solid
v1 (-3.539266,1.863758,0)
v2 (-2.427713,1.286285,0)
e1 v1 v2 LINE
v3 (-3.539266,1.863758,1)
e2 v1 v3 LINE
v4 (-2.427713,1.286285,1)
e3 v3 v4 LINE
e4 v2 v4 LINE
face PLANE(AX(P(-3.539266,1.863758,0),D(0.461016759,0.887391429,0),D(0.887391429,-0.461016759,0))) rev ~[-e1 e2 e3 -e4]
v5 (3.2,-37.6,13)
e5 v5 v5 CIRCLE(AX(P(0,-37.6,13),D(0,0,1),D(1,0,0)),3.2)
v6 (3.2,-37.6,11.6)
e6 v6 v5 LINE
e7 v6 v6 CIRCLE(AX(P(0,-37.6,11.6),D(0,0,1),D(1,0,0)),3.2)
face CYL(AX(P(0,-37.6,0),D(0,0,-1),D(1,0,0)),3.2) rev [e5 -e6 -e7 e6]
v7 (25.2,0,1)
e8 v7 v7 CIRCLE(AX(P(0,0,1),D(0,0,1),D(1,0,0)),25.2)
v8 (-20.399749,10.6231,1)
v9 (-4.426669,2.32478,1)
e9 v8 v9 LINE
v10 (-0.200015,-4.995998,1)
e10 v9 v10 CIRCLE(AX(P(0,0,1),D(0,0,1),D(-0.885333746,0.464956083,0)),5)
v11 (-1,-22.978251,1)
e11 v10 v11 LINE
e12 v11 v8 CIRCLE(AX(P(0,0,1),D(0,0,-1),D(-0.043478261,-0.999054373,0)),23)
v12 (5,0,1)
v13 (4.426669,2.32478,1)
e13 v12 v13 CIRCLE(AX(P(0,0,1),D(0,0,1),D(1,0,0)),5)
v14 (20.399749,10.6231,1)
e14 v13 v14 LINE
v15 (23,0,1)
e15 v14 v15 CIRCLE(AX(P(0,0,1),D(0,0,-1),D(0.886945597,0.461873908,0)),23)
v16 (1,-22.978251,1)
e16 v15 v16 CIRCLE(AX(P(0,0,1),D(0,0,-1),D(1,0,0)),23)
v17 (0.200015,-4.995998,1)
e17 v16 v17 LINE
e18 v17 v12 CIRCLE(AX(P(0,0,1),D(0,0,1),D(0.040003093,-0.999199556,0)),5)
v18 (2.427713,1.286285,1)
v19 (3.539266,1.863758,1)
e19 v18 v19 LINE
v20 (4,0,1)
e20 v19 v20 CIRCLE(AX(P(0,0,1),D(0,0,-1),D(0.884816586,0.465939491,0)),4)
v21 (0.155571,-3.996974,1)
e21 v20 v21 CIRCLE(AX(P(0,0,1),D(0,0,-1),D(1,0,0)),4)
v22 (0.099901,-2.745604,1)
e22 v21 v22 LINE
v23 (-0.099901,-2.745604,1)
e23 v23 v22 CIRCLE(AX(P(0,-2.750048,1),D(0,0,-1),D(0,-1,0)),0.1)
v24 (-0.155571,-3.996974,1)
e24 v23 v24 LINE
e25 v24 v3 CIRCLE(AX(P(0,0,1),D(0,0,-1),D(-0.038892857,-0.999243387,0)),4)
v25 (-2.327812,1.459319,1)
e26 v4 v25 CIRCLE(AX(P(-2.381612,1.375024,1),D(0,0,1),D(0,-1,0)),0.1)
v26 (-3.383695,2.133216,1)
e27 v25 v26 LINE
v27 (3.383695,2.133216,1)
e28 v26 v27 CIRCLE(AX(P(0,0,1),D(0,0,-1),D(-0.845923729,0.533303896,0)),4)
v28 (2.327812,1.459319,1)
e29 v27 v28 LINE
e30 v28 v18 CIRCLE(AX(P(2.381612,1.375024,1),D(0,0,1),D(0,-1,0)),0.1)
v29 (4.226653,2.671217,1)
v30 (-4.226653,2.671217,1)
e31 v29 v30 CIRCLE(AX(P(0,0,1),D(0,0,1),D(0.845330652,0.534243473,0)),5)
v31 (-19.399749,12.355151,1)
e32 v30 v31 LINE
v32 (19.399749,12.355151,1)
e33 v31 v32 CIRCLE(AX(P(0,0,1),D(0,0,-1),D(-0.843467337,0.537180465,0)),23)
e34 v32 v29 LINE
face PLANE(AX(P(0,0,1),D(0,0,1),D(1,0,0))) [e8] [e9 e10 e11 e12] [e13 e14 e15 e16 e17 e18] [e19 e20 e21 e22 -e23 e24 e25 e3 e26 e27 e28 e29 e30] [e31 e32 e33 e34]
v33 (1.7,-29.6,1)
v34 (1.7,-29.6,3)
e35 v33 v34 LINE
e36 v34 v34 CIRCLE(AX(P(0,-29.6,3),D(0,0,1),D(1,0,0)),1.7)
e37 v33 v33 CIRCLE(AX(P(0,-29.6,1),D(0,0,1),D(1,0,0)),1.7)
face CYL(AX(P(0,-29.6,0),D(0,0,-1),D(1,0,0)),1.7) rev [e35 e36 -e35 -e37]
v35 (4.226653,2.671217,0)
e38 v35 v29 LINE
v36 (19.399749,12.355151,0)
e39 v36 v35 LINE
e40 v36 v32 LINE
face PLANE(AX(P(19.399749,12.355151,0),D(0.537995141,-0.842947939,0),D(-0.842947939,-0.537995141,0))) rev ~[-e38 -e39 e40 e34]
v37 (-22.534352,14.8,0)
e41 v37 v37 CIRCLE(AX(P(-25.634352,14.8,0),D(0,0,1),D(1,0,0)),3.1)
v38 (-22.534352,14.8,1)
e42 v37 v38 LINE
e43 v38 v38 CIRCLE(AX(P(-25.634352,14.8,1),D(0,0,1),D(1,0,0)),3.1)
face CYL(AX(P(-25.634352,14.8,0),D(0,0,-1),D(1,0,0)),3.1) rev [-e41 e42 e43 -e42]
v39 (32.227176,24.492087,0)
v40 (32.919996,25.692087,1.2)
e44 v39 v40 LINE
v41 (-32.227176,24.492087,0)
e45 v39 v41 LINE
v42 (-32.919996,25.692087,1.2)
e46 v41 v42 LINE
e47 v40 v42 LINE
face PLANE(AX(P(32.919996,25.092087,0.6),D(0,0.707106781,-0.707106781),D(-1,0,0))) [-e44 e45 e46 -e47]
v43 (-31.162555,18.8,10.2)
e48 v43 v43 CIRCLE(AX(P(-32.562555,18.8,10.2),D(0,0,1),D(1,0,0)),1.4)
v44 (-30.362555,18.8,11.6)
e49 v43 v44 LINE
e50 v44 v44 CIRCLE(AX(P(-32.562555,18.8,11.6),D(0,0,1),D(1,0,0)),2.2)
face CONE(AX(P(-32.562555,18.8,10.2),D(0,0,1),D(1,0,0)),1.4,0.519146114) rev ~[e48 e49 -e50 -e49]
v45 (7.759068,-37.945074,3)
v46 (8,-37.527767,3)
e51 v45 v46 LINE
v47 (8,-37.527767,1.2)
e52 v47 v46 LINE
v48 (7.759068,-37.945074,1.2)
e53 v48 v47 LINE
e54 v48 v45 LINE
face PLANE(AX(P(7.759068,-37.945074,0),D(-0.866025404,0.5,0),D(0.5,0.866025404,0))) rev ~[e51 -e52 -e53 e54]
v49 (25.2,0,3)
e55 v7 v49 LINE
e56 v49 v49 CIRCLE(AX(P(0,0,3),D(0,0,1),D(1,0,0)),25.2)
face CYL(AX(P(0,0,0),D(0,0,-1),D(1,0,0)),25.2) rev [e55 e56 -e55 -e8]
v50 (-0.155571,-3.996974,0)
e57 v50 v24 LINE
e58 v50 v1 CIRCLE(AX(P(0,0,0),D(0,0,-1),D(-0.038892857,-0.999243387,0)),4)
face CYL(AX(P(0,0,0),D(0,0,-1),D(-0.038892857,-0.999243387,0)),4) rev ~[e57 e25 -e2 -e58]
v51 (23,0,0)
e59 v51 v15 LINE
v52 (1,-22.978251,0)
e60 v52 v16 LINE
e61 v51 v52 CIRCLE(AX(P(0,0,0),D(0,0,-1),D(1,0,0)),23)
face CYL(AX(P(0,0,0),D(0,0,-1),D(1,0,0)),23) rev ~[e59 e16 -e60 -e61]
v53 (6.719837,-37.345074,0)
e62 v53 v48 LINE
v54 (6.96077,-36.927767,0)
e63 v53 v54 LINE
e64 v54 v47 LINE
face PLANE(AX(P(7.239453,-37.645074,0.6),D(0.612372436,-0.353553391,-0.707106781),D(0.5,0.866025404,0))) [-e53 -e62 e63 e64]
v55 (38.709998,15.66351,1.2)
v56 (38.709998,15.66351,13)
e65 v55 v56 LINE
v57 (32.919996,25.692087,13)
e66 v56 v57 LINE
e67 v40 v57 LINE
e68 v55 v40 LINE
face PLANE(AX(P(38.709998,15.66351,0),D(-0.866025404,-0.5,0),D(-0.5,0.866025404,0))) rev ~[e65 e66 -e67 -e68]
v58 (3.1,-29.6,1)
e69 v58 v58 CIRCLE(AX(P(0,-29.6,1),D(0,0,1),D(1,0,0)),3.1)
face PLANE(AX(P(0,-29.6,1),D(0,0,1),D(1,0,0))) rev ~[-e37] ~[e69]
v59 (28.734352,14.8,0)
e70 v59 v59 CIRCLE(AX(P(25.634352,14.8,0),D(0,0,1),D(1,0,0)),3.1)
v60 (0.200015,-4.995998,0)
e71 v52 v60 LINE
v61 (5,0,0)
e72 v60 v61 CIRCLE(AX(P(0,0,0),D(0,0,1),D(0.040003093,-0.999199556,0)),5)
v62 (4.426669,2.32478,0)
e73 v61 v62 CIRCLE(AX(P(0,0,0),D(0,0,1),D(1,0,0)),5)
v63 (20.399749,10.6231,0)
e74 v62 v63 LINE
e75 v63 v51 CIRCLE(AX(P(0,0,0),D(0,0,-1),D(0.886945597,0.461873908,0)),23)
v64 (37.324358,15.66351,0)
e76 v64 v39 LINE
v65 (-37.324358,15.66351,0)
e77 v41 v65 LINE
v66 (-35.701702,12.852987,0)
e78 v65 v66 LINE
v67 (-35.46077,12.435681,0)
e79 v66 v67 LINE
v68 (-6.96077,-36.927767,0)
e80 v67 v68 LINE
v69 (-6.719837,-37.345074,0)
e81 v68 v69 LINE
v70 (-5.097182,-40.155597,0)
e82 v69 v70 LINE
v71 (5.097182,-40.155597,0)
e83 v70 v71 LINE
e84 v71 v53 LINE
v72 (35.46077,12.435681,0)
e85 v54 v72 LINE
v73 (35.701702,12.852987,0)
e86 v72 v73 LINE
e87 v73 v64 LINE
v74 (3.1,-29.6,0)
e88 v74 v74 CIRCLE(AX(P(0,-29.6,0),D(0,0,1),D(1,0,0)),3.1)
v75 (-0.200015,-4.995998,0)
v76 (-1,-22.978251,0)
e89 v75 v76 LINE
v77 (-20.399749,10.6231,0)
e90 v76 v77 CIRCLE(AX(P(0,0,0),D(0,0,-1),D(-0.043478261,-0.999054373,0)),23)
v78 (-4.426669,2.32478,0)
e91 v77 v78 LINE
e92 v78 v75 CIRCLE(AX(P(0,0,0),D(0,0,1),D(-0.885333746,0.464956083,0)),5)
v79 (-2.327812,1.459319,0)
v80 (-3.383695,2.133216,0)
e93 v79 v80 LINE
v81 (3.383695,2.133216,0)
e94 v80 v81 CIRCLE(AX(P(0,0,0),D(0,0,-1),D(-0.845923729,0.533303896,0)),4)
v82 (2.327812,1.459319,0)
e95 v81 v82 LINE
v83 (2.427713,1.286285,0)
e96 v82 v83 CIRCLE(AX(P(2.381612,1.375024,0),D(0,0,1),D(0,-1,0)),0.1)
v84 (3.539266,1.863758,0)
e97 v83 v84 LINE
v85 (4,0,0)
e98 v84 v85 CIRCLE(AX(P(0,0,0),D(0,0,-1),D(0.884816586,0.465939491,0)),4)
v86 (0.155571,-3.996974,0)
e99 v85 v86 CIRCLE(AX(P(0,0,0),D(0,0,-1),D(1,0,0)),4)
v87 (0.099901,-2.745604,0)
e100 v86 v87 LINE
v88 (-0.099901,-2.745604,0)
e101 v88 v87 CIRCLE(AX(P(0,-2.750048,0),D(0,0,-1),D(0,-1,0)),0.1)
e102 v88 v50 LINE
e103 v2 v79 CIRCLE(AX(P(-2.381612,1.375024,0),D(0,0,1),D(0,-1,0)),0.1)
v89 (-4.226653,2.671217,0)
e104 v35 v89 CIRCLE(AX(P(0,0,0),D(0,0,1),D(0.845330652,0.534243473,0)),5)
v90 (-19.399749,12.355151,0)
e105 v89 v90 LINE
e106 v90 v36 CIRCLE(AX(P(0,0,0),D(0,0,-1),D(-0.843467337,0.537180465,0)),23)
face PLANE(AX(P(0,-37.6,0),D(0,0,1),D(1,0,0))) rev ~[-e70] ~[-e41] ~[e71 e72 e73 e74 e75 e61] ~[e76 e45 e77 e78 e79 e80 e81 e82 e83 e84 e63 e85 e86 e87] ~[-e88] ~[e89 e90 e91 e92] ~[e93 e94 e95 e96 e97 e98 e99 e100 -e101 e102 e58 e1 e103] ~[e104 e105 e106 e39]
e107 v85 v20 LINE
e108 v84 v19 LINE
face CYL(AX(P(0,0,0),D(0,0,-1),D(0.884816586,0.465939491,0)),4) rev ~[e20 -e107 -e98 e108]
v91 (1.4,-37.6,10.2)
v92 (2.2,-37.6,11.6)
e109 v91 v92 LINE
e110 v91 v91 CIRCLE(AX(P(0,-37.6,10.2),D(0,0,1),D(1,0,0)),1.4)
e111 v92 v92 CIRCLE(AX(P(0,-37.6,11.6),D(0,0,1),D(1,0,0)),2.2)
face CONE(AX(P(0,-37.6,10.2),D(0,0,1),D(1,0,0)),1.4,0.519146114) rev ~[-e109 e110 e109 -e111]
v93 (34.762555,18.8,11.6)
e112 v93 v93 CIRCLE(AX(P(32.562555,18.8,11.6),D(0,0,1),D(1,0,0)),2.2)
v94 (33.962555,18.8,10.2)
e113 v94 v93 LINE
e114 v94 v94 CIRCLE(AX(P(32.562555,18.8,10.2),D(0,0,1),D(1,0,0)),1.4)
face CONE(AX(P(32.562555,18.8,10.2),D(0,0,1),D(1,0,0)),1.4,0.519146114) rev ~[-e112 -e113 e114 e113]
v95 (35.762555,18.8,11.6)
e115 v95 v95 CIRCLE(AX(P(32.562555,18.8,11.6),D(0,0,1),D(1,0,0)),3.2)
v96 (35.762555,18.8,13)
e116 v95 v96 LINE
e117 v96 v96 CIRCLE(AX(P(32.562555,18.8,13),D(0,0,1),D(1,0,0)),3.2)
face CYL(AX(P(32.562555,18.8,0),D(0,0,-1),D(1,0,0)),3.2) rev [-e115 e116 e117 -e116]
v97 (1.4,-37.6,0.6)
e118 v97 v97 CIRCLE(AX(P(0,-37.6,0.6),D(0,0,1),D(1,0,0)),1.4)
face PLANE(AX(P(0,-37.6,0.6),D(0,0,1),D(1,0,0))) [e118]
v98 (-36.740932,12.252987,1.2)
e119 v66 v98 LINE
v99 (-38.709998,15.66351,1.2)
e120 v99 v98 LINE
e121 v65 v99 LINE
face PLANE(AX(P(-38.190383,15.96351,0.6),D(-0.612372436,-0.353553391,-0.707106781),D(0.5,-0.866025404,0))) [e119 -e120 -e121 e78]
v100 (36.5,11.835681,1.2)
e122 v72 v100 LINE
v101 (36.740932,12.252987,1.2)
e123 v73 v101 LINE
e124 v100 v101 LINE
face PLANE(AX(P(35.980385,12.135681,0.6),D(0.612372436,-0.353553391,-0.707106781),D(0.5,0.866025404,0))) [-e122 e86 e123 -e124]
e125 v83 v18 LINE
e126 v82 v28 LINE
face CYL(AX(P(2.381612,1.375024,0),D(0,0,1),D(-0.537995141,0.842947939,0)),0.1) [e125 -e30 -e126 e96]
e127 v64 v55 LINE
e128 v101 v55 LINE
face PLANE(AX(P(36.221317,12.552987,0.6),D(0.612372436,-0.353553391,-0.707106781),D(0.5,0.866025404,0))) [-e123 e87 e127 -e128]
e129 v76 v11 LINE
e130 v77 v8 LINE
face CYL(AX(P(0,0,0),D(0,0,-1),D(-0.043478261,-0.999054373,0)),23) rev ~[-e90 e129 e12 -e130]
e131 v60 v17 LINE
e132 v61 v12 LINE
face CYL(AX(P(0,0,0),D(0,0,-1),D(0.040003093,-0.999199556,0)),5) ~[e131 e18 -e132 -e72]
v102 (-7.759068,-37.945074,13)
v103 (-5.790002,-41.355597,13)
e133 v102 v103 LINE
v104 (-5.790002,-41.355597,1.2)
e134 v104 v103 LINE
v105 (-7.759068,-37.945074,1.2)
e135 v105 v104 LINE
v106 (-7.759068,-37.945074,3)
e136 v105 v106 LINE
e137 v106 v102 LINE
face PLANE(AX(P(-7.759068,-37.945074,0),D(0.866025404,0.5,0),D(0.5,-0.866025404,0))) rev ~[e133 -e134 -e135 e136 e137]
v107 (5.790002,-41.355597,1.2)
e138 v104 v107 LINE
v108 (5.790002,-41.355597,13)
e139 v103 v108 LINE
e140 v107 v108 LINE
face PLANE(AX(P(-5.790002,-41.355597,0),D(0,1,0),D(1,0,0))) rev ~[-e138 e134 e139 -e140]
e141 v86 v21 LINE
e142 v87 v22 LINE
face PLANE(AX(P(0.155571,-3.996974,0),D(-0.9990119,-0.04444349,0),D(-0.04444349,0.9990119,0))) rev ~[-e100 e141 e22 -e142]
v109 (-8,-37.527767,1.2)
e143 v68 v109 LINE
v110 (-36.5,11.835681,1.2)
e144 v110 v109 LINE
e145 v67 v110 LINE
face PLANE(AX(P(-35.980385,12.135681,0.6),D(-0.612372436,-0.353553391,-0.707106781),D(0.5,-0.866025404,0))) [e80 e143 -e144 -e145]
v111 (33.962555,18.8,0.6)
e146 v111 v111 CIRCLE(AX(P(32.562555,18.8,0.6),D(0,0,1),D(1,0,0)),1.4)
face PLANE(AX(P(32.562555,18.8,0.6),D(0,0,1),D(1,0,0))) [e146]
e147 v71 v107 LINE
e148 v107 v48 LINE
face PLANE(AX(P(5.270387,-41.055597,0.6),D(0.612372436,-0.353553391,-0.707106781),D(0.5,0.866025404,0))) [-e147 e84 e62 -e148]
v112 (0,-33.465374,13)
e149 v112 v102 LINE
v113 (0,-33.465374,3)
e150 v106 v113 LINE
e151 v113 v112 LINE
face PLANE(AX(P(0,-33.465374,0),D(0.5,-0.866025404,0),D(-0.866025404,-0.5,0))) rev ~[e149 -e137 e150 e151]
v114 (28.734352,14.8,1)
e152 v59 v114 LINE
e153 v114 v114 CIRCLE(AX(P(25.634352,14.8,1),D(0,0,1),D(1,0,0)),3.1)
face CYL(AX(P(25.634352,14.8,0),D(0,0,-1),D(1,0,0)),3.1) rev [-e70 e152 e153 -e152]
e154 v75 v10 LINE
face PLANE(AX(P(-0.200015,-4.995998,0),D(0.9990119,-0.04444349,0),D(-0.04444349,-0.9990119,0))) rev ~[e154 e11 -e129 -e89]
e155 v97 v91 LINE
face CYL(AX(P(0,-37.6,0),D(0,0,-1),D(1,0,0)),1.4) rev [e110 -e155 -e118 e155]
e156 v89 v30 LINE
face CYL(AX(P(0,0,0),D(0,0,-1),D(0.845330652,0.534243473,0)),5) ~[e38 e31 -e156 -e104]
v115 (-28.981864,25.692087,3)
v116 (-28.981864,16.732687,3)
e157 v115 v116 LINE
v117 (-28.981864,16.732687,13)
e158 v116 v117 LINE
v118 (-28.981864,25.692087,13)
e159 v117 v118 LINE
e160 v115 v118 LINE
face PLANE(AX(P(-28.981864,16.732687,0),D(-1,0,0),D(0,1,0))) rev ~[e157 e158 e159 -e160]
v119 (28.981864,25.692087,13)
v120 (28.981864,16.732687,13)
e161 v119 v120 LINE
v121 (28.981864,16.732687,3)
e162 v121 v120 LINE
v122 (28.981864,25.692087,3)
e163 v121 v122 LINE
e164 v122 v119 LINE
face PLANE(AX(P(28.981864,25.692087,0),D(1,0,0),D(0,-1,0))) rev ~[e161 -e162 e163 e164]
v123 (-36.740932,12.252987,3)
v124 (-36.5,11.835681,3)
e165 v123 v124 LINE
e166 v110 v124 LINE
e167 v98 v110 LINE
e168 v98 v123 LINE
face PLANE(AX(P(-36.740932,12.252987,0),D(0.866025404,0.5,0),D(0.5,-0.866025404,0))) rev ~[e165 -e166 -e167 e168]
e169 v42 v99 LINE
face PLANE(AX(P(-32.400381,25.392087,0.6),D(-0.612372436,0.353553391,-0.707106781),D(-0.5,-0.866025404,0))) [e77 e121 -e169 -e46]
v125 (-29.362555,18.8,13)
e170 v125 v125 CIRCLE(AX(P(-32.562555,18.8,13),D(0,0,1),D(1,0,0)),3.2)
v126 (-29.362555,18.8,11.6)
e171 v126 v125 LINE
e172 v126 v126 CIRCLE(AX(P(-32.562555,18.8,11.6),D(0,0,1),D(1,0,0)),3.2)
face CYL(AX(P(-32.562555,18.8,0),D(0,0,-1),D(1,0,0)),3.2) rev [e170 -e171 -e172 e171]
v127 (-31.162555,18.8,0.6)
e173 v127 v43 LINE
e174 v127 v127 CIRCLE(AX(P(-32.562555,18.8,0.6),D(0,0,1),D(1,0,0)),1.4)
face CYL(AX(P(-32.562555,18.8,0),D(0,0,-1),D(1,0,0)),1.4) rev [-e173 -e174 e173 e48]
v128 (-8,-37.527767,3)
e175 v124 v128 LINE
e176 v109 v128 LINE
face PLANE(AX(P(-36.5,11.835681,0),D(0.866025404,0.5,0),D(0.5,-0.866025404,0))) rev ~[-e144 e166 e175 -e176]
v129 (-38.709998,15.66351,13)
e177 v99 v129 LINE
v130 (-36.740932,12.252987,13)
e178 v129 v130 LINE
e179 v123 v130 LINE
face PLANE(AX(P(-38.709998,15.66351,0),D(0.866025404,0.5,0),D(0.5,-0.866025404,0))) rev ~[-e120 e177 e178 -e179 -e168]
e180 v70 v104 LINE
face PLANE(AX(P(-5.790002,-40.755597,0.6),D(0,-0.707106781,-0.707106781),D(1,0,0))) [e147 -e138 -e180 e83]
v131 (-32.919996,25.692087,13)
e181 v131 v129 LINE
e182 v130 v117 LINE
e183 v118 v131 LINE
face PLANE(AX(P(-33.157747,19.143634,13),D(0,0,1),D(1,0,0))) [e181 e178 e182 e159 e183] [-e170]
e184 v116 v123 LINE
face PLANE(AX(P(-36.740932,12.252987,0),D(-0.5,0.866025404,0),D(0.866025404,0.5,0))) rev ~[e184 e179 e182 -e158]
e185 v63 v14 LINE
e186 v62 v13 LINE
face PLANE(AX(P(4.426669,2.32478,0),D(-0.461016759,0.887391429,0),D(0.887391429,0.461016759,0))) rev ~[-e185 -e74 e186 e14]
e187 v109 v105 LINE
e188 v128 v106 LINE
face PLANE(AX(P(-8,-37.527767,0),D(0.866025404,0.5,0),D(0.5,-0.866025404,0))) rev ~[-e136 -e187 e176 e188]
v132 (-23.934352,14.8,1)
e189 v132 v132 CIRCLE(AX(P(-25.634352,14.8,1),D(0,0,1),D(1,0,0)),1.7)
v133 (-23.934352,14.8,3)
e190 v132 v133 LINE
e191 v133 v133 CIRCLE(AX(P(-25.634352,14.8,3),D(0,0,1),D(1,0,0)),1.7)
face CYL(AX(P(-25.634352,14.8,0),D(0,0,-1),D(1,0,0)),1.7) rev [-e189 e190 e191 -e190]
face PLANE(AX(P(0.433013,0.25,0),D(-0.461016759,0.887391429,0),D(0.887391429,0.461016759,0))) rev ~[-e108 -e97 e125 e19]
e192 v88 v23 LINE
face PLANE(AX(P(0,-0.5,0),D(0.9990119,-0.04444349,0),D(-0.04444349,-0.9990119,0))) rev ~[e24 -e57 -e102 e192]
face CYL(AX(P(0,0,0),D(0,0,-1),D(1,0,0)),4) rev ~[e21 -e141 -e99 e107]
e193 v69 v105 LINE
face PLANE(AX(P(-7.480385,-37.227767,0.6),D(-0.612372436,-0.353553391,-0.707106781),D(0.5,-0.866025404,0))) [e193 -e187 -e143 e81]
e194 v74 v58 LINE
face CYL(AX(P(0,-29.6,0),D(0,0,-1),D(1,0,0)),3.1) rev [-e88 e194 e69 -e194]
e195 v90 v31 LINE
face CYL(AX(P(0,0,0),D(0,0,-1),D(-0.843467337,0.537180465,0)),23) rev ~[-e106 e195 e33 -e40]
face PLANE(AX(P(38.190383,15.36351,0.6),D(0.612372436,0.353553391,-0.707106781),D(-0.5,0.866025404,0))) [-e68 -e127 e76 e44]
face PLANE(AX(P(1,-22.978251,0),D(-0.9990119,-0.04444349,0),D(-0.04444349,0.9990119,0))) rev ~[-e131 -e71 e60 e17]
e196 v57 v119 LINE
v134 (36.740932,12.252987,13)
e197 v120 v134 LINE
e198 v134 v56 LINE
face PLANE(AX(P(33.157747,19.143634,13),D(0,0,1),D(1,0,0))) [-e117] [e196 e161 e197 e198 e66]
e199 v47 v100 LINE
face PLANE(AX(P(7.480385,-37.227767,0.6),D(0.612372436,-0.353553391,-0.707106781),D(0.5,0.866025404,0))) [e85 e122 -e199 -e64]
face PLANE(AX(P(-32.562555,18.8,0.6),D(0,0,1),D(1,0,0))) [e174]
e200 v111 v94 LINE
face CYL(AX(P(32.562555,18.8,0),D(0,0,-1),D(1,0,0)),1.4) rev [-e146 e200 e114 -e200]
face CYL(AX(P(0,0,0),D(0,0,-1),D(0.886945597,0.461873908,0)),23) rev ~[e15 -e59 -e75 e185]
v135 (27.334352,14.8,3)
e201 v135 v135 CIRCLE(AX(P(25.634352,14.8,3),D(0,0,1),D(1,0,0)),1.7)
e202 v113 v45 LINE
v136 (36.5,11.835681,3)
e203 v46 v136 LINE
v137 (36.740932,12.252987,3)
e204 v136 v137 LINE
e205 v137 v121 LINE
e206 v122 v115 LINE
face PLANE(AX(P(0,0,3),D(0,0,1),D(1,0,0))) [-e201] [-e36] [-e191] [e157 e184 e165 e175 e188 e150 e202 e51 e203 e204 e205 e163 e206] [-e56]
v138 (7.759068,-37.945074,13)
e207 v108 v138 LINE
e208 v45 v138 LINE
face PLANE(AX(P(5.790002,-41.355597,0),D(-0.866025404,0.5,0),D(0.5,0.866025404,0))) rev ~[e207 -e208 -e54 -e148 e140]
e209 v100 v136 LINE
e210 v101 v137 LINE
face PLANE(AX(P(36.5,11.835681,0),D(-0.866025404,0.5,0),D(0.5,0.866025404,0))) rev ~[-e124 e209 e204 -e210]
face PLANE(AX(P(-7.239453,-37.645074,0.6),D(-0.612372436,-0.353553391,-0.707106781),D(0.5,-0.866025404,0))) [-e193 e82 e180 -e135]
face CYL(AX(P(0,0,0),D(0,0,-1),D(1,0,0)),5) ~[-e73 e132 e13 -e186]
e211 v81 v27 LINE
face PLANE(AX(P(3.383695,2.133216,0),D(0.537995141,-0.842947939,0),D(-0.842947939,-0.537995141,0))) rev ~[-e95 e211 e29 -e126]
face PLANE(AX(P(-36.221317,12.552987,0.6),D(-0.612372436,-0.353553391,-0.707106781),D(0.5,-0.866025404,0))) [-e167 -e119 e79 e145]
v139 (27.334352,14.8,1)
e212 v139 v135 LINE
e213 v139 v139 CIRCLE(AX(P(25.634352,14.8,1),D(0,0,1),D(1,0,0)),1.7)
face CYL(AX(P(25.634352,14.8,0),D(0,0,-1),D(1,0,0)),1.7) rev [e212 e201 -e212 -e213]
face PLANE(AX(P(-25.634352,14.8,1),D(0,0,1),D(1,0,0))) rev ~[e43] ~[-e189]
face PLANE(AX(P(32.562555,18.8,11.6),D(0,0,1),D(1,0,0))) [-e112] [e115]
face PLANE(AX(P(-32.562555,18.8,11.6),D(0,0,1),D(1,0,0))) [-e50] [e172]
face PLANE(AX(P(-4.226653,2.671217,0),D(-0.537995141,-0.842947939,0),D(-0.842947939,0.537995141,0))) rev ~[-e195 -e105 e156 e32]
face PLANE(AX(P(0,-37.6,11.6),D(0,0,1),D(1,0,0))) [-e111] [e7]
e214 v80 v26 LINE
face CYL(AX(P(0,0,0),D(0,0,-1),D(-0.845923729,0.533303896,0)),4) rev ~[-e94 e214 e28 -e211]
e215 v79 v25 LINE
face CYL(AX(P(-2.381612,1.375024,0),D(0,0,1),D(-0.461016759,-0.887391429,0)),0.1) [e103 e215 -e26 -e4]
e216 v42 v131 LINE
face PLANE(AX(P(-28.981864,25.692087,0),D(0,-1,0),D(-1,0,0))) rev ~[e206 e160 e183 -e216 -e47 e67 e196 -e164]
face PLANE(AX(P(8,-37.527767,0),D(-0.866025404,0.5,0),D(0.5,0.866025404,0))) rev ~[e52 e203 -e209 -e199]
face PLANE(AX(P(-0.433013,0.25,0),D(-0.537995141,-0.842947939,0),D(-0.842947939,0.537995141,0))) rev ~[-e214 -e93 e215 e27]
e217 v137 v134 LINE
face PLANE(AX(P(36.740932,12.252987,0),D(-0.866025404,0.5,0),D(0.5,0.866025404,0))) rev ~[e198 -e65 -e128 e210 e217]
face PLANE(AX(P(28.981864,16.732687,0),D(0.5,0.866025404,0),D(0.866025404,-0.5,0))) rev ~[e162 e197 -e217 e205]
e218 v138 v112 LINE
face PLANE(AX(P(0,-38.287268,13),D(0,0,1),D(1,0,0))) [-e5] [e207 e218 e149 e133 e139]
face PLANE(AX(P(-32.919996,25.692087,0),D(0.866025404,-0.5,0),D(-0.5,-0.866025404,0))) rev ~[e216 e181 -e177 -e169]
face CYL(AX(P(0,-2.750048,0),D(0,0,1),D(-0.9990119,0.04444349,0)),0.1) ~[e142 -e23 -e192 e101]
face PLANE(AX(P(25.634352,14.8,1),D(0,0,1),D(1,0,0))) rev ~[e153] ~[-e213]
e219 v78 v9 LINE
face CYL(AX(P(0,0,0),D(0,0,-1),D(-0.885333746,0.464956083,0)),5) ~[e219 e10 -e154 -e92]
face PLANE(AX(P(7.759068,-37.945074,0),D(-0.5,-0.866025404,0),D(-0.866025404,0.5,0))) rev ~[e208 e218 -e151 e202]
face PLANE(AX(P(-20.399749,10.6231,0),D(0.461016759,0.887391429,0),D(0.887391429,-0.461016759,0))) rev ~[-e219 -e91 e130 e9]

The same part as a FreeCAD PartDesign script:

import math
import FreeCAD as App
import Part
import Sketcher
from FreeCAD import Vector
Q = App.Units.Quantity


def edges_at(feature, points):
    """Names of the edges that pass closest to the given points."""
    edges = feature.Shape.Edges
    near = lambda p: min(range(len(edges)), key=lambda i: edges[i].distToShape(Part.Vertex(*p))[0])
    return sorted({f"Edge{near(p) + 1}" for p in points})


def add_polygon(sketch, points):
    """Adds a closed chain of lines whose ends are joined by coincident constraints."""
    first, n = sketch.GeometryCount, len(points)
    for a, b in zip(points, points[1:] + points[:1]):
        sketch.addGeometry(Part.LineSegment(App.Vector(*a, 0), App.Vector(*b, 0)), False)
    for i in range(n):
        sketch.addConstraint(Sketcher.Constraint("Coincident", first + i, 2, first + (i + 1) % n, 1))

doc = App.newDocument("Part")
body = doc.addObject("PartDesign::Body", "Body")

# Sketch on XY plane
sketch1 = body.newObject("Sketcher::SketchObject", "Sketch")
sketch1.AttachmentSupport = (doc.getObject("XY_Plane"), [""])
sketch1.MapMode = "FlatFace"
add_polygon(sketch1, [(-28.981864, 25.692087), (-28.981864, 16.732687), (-36.740932, 12.252987), (-36.5, 11.835681), (-8, -37.527767), (-7.759068, -37.945074), (0, -33.465374), (7.759068, -37.945074), (8, -37.527767), (36.5, 11.835681), (36.740932, 12.252987), (28.981864, 16.732687), (28.981864, 25.692087)])  # lines 0-12
sketch1.addGeometry(Part.Circle(Vector(0, -29.6, 0), Vector(0, 0, 1), 1.7), False)  # 13
sketch1.addGeometry(Part.Circle(Vector(-25.634352, 14.8, 0), Vector(0, 0, 1), 1.7), False)  # 14
sketch1.addGeometry(Part.Circle(Vector(0, 0, 0), Vector(0, 0, 1), 25.2), False)  # 15
sketch1.addGeometry(Part.Circle(Vector(25.634352, 14.8, 0), Vector(0, 0, 1), 1.7), False)  # 16
sketch1.addConstraint([
    Sketcher.Constraint("Vertical", 0),
    Sketcher.Constraint("Vertical", 11),
    Sketcher.Constraint("Horizontal", 12),
    Sketcher.Constraint("Coincident", 15, 3, -1, 1),
    Sketcher.Constraint("Equal", 13, 14),
    Sketcher.Constraint("Equal", 14, 16),
    Sketcher.Constraint("Symmetric", 14, 3, 16, 3, -2),
    Sketcher.Constraint("Symmetric", 4, 2, 6, 2, -2),
    Sketcher.Constraint("Symmetric", 3, 2, 7, 2, -2),
    Sketcher.Constraint("Symmetric", 2, 2, 8, 2, -2),
    Sketcher.Constraint("Symmetric", 1, 2, 9, 2, -2),
    Sketcher.Constraint("Symmetric", 0, 2, 10, 2, -2),
    Sketcher.Constraint("PointOnObject", 13, 3, -2),
    Sketcher.Constraint("PointOnObject", 5, 2, -2),
    Sketcher.Constraint("Perpendicular", 1, 2),
    Sketcher.Constraint("Parallel", 2, 3),
    Sketcher.Constraint("Parallel", 3, 4),
    Sketcher.Constraint("Perpendicular", 4, 5),
    Sketcher.Constraint("Equal", 2, 4),
    Sketcher.Constraint("Equal", 1, 5),
    Sketcher.Constraint("Diameter", 13, Q("3.4 mm")),
    Sketcher.Constraint("Diameter", 15, Q("50.4 mm")),
    Sketcher.Constraint("Angle", 1, Q("-150 deg")),
    Sketcher.Constraint("Distance", 3, Q("57 mm")),
    Sketcher.Constraint("DistanceX", 3, 2, -1, 1, Q("8 mm")),
    Sketcher.Constraint("DistanceY", 13, 3, -1, 1, Q("29.6 mm")),
    Sketcher.Constraint("DistanceY", -1, 1, 14, 3, Q("14.8 mm")),
    Sketcher.Constraint("DistanceY", 0, 2, 0, 1, Q("8.9594 mm")),
    Sketcher.Constraint("Distance", 1, Q("8.9594 mm")),
    Sketcher.Constraint("DistanceX", 14, 3, -1, 1, Q("25.634352 mm")),
    Sketcher.Constraint("DistanceY", -1, 1, 2, 2, Q("11.835681 mm")),
])
pad1 = body.newObject("PartDesign::Pad", "Pad")
pad1.Profile = sketch1
pad1.Length = 3

# Sketch on XY plane
sketch2 = body.newObject("Sketcher::SketchObject", "Sketch001")
sketch2.AttachmentSupport = (doc.getObject("XY_Plane"), [""])
sketch2.MapMode = "FlatFace"
sketch2.addGeometry([
    Part.Circle(Vector(0, 0, 0), Vector(0, 0, 1), 25.2),  # 0
    Part.LineSegment(Vector(-20.399749, 10.6231, 0), Vector(-4.426669, 2.32478, 0)),  # 1
    Part.ArcOfCircle(Part.Circle(Vector(0, 0, 0), Vector(0, 0, 1), 5), math.radians(152.29262), math.radians(267.70738)),  # 2
    Part.LineSegment(Vector(-0.200015, -4.995998, 0), Vector(-1, -22.978251, 0)),  # 3
    Part.ArcOfCircle(Part.Circle(Vector(0, 0, 0), Vector(0, 0, 1), 23), math.radians(152.491906), math.radians(267.508094)),  # 4
    Part.ArcOfCircle(Part.Circle(Vector(0, 0, 0), Vector(0, 0, 1), 4), math.radians(152.228959), math.radians(267.771041)),  # 5
    Part.LineSegment(Vector(-3.539266, 1.863758, 0), Vector(-0.433013, 0.25, 0)),  # 6
    Part.LineSegment(Vector(-0.433013, 0.25, 0), Vector(-3.383695, 2.133216, 0)),  # 7
    Part.ArcOfCircle(Part.Circle(Vector(0, 0, 0), Vector(0, 0, 1), 4), math.radians(32.228959), math.radians(147.771041)),  # 8
    Part.LineSegment(Vector(3.383695, 2.133216, 0), Vector(0.433013, 0.25, 0)),  # 9
    Part.LineSegment(Vector(0.433013, 0.25, 0), Vector(3.539266, 1.863758, 0)),  # 10
    Part.ArcOfCircle(Part.Circle(Vector(0, 0, 0), Vector(0, 0, 1), 4), math.radians(0), math.radians(27.771041)),  # 11
    Part.ArcOfCircle(Part.Circle(Vector(0, 0, 0), Vector(0, 0, 1), 4), math.radians(-87.771041), math.radians(0)),  # 12
    Part.LineSegment(Vector(0.155571, -3.996974, 0), Vector(0, -0.5, 0)),  # 13
    Part.LineSegment(Vector(0, -0.5, 0), Vector(-0.155571, -3.996974, 0)),  # 14
    Part.ArcOfCircle(Part.Circle(Vector(0, 0, 0), Vector(0, 0, 1), 5), math.radians(0), math.radians(27.70738)),  # 15
    Part.LineSegment(Vector(4.426669, 2.32478, 0), Vector(20.399749, 10.6231, 0)),  # 16
    Part.ArcOfCircle(Part.Circle(Vector(0, 0, 0), Vector(0, 0, 1), 23), math.radians(0), math.radians(27.508094)),  # 17
    Part.ArcOfCircle(Part.Circle(Vector(0, 0, 0), Vector(0, 0, 1), 23), math.radians(-87.508094), math.radians(0)),  # 18
    Part.LineSegment(Vector(1, -22.978251, 0), Vector(0.200015, -4.995998, 0)),  # 19
    Part.ArcOfCircle(Part.Circle(Vector(0, 0, 0), Vector(0, 0, 1), 5), math.radians(-87.70738), math.radians(0)),  # 20
    Part.ArcOfCircle(Part.Circle(Vector(0, 0, 0), Vector(0, 0, 1), 5), math.radians(32.29262), math.radians(147.70738)),  # 21
    Part.LineSegment(Vector(-4.226653, 2.671217, 0), Vector(-19.399749, 12.355151, 0)),  # 22
    Part.ArcOfCircle(Part.Circle(Vector(0, 0, 0), Vector(0, 0, 1), 23), math.radians(32.491906), math.radians(147.508094)),  # 23
    Part.LineSegment(Vector(19.399749, 12.355151, 0), Vector(4.226653, 2.671217, 0)),  # 24
], False)
sketch2.addConstraint([
    Sketcher.Constraint("Coincident", 1, 2, 2, 1),
    Sketcher.Constraint("Coincident", 2, 2, 3, 1),
    Sketcher.Constraint("Coincident", 3, 2, 4, 2),
    Sketcher.Constraint("Coincident", 4, 1, 1, 1),
    Sketcher.Constraint("Coincident", 5, 1, 6, 1),
    Sketcher.Constraint("Coincident", 6, 2, 7, 1),
    Sketcher.Constraint("Coincident", 7, 2, 8, 2),
    Sketcher.Constraint("Coincident", 8, 1, 9, 1),
    Sketcher.Constraint("Coincident", 9, 2, 10, 1),
    Sketcher.Constraint("Coincident", 10, 2, 11, 2),
    Sketcher.Constraint("Tangent", 11, 1, 12, 2),
    Sketcher.Constraint("Coincident", 12, 1, 13, 1),
    Sketcher.Constraint("Coincident", 13, 2, 14, 1),
    Sketcher.Constraint("Coincident", 14, 2, 5, 2),
    Sketcher.Constraint("Coincident", 15, 2, 16, 1),
    Sketcher.Constraint("Coincident", 16, 2, 17, 2),
    Sketcher.Constraint("Tangent", 17, 1, 18, 2),
    Sketcher.Constraint("Coincident", 18, 1, 19, 1),
    Sketcher.Constraint("Coincident", 19, 2, 20, 1),
    Sketcher.Constraint("Tangent", 20, 2, 15, 1),
    Sketcher.Constraint("Coincident", 21, 2, 22, 1),
    Sketcher.Constraint("Coincident", 22, 2, 23, 2),
    Sketcher.Constraint("Coincident", 23, 1, 24, 1),
    Sketcher.Constraint("Coincident", 24, 2, 21, 1),
    Sketcher.Constraint("Coincident", 0, 3, -1, 1),
    Sketcher.Constraint("Coincident", 2, 3, -1, 1),
    Sketcher.Constraint("Coincident", 4, 3, -1, 1),
    Sketcher.Constraint("Coincident", 5, 3, -1, 1),
    Sketcher.Constraint("Coincident", 8, 3, -1, 1),
    Sketcher.Constraint("Coincident", 11, 3, -1, 1),
    Sketcher.Constraint("Coincident", 15, 3, -1, 1),
    Sketcher.Constraint("Coincident", 17, 3, -1, 1),
    Sketcher.Constraint("Coincident", 21, 3, -1, 1),
    Sketcher.Constraint("Coincident", 23, 3, -1, 1),
    Sketcher.Constraint("Equal", 5, 8),
    Sketcher.Constraint("Equal", 8, 11),
    Sketcher.Constraint("Equal", 11, 12),
    Sketcher.Constraint("Equal", 2, 15),
    Sketcher.Constraint("Equal", 4, 17),
    Sketcher.Constraint("Equal", 17, 18),
    Sketcher.Constraint("Equal", 15, 20),
    Sketcher.Constraint("Equal", 20, 21),
    Sketcher.Constraint("Equal", 18, 23),
    Sketcher.Constraint("Symmetric", 6, 2, 9, 2, -2),
    Sketcher.Constraint("PointOnObject", 11, 1, -1),
    Sketcher.Constraint("PointOnObject", 13, 2, -2),
    Sketcher.Constraint("PointOnObject", 17, 1, -1),
    Sketcher.Constraint("PointOnObject", 20, 2, -1),
    Sketcher.Constraint("Parallel", 1, 6),
    Sketcher.Constraint("Parallel", 3, 14),
    Sketcher.Constraint("Parallel", 10, 16),
    Sketcher.Constraint("Parallel", 13, 19),
    Sketcher.Constraint("Parallel", 7, 22),
    Sketcher.Constraint("Parallel", 9, 24),
    Sketcher.Constraint("Horizontal", 7, 2, 8, 1),
    Sketcher.Constraint("Horizontal", 5, 1, 10, 2),
    Sketcher.Constraint("Horizontal", 12, 1, 14, 2),
    Sketcher.Constraint("Horizontal", 1, 2, 15, 2),
    Sketcher.Constraint("Horizontal", 3, 2, 18, 1),
    Sketcher.Constraint("Horizontal", 22, 2, 23, 1),
    Sketcher.Constraint("Equal", 1, 3),
    Sketcher.Constraint("Equal", 6, 7),
    Sketcher.Constraint("Equal", 10, 13),
    Sketcher.Constraint("Radius", 2, Q("5 mm")),
    Sketcher.Constraint("Radius", 4, Q("23 mm")),
    Sketcher.Constraint("Radius", 5, Q("4 mm")),
    Sketcher.Constraint("Diameter", 0, Q("50.4 mm")),
    Sketcher.Constraint("DistanceX", 3, 2, -1, 1, Q("1 mm")),
    Sketcher.Constraint("DistanceX", 4, 1, 22, 2, Q("1 mm")),
    Sketcher.Constraint("DistanceY", 13, 2, -1, 1, Q("0.5 mm")),
    Sketcher.Constraint("DistanceY", -1, 1, 6, 2, Q("0.25 mm")),
    Sketcher.Constraint("DistanceY", 7, 2, 21, 2, Q("0.538002 mm")),
    Sketcher.Constraint("DistanceY", -1, 1, 4, 1, Q("10.6231 mm")),
])
pad2 = body.newObject("PartDesign::Pad", "Pad001")
pad2.Profile = sketch2
pad2.Length = 1

# Sketch on XY plane
sketch3 = body.newObject("Sketcher::SketchObject", "Sketch002")
sketch3.AttachmentSupport = (doc.getObject("XY_Plane"), [""])
sketch3.MapMode = "FlatFace"
add_polygon(sketch3, [(-28.981864, 16.732687), (-28.981864, 25.692087), (-32.919996, 25.692087), (-38.709998, 15.66351), (-36.740932, 12.252987)])  # lines 0-4
sketch3.addGeometry(Part.Circle(Vector(-32.562555, 18.8, 0), Vector(0, 0, 1), 3.2), False)  # 5
add_polygon(sketch3, [(5.790002, -41.355597), (7.759068, -37.945074), (0, -33.465374), (-7.759068, -37.945074), (-5.790002, -41.355597)])  # lines 6-10
sketch3.addGeometry(Part.Circle(Vector(0, -37.6, 0), Vector(0, 0, 1), 3.2), False)  # 11
add_polygon(sketch3, [(32.919996, 25.692087), (28.981864, 25.692087), (28.981864, 16.732687), (36.740932, 12.252987), (38.709998, 15.66351)])  # lines 12-16
sketch3.addGeometry(Part.Circle(Vector(32.562555, 18.8, 0), Vector(0, 0, 1), 3.2), False)  # 17
sketch3.addConstraint([
    Sketcher.Constraint("Vertical", 0),
    Sketcher.Constraint("Horizontal", 1),
    Sketcher.Constraint("Horizontal", 10),
    Sketcher.Constraint("Horizontal", 12),
    Sketcher.Constraint("Vertical", 13),
    Sketcher.Constraint("Equal", 5, 11),
    Sketcher.Constraint("Equal", 11, 17),
    Sketcher.Constraint("Symmetric", 5, 3, 17, 3, -2),
    Sketcher.Constraint("Symmetric", 6, 2, 8, 2, -2),
    Sketcher.Constraint("Symmetric", 0, 2, 12, 2, -2),
    Sketcher.Constraint("Symmetric", 3, 2, 14, 2, -2),
    Sketcher.Constraint("Symmetric", 2, 2, 15, 2, -2),
    Sketcher.Constraint("PointOnObject", 11, 3, -2),
    Sketcher.Constraint("PointOnObject", 7, 2, -2),
    Sketcher.Constraint("Perpendicular", 3, 4),
    Sketcher.Constraint("Parallel", 2, 6),
    Sketcher.Constraint("Perpendicular", 6, 7),
    Sketcher.Constraint("Parallel", 4, 8),
    Sketcher.Constraint("Perpendicular", 8, 9),
    Sketcher.Constraint("Parallel", 7, 14),
    Sketcher.Constraint("Parallel", 9, 16),
    Sketcher.Constraint("Equal", 3, 6),
    Sketcher.Constraint("Equal", 4, 7),
    Sketcher.Constraint("Diameter", 5, Q("6.4 mm")),
    Sketcher.Constraint("Angle", 2, Q("-120 deg")),
    Sketcher.Constraint("DistanceY", -1, 1, 5, 3, Q("18.8 mm")),
    Sketcher.Constraint("DistanceY", 11, 3, -1, 1, Q("37.6 mm")),
    Sketcher.Constraint("DistanceX", 3, 2, 6, 2, Q("44.5 mm")),
    Sketcher.Constraint("DistanceX", 2, 2, -1, 1, Q("38.709998 mm")),
    Sketcher.Constraint("DistanceX", 2, 2, 1, 2, Q("5.790002 mm")),
    Sketcher.Constraint("DistanceY", 0, 1, 0, 2, Q("8.9594 mm")),
    Sketcher.Constraint("DistanceY", -1, 1, 2, 2, Q("15.66351 mm")),
    Sketcher.Constraint("DistanceX", 5, 3, 17, 3, Q("65.12511 mm")),
    Sketcher.Constraint("DistanceY", 6, 2, 4, 2, Q("54.677761 mm")),
])
pad3 = body.newObject("PartDesign::Pad", "Pad002")
pad3.Profile = sketch3
pad3.Length = 13

# Sketch on XY plane
sketch4 = body.newObject("Sketcher::SketchObject", "Sketch003")
sketch4.AttachmentSupport = (doc.getObject("XY_Plane"), [""])
sketch4.MapMode = "FlatFace"
sketch4.addGeometry([
    Part.Circle(Vector(0, -37.6, 0), Vector(0, 0, 1), 3.2),  # 0
    Part.Circle(Vector(0, -37.6, 0), Vector(0, 0, 1), 1.4),  # 1
    Part.Circle(Vector(-32.562555, 18.8, 0), Vector(0, 0, 1), 3.2),  # 2
    Part.Circle(Vector(-32.562555, 18.8, 0), Vector(0, 0, 1), 1.4),  # 3
    Part.Circle(Vector(32.562555, 18.8, 0), Vector(0, 0, 1), 3.2),  # 4
    Part.Circle(Vector(32.562555, 18.8, 0), Vector(0, 0, 1), 1.4),  # 5
], False)
sketch4.addConstraint([
    Sketcher.Constraint("Coincident", 1, 3, 0, 3),
    Sketcher.Constraint("Coincident", 3, 3, 2, 3),
    Sketcher.Constraint("Coincident", 5, 3, 4, 3),
    Sketcher.Constraint("Equal", 0, 2),
    Sketcher.Constraint("Equal", 1, 3),
    Sketcher.Constraint("Equal", 2, 4),
    Sketcher.Constraint("Equal", 3, 5),
    Sketcher.Constraint("Symmetric", 2, 3, 4, 3, -2),
    Sketcher.Constraint("PointOnObject", 0, 3, -2),
    Sketcher.Constraint("Diameter", 0, Q("6.4 mm")),
    Sketcher.Constraint("Diameter", 1, Q("2.8 mm")),
    Sketcher.Constraint("DistanceY", 0, 3, -1, 1, Q("37.6 mm")),
    Sketcher.Constraint("DistanceY", -1, 1, 2, 3, Q("18.8 mm")),
    Sketcher.Constraint("DistanceX", 2, 3, 4, 3, Q("65.12511 mm")),
])
pad4 = body.newObject("PartDesign::Pad", "Pad003")
pad4.Profile = sketch4
pad4.Length = 11.6

# Sketch on XY plane
sketch5 = body.newObject("Sketcher::SketchObject", "Sketch004")
sketch5.AttachmentSupport = (doc.getObject("XY_Plane"), [""])
sketch5.MapMode = "FlatFace"
sketch5.addGeometry([
    Part.Circle(Vector(0, -37.6, 0), Vector(0, 0, 1), 1.4),
    Part.Circle(Vector(-32.562555, 18.8, 0), Vector(0, 0, 1), 1.4),
    Part.Circle(Vector(32.562555, 18.8, 0), Vector(0, 0, 1), 1.4),
], False)
sketch5.addConstraint([
    Sketcher.Constraint("Equal", 0, 1),
    Sketcher.Constraint("Equal", 1, 2),
    Sketcher.Constraint("Symmetric", 1, 3, 2, 3, -2),
    Sketcher.Constraint("PointOnObject", 0, 3, -2),
    Sketcher.Constraint("Diameter", 0, Q("2.8 mm")),
    Sketcher.Constraint("DistanceY", 0, 3, -1, 1, Q("37.6 mm")),
    Sketcher.Constraint("DistanceY", -1, 1, 1, 3, Q("18.8 mm")),
    Sketcher.Constraint("DistanceX", 1, 3, 2, 3, Q("65.12511 mm")),
])
pad5 = body.newObject("PartDesign::Pad", "Pad004")
pad5.Profile = sketch5
pad5.Length = 0.6

# Sketch on XY plane
sketch6 = body.newObject("Sketcher::SketchObject", "Sketch005")
sketch6.AttachmentSupport = (doc.getObject("XY_Plane"), [""])
sketch6.MapMode = "FlatFace"
sketch6.addGeometry([
    Part.Circle(Vector(25.634352, 14.8, 0), Vector(0, 0, 1), 3.1),  # 0
    Part.Circle(Vector(25.634352, 14.8, 0), Vector(0, 0, 1), 1.7),  # 1
    Part.Circle(Vector(-25.634352, 14.8, 0), Vector(0, 0, 1), 3.1),  # 2
    Part.Circle(Vector(-25.634352, 14.8, 0), Vector(0, 0, 1), 1.7),  # 3
    Part.Circle(Vector(0, -29.6, 0), Vector(0, 0, 1), 3.1),  # 4
    Part.Circle(Vector(0, -29.6, 0), Vector(0, 0, 1), 1.7),  # 5
], False)
sketch6.addConstraint([
    Sketcher.Constraint("Coincident", 1, 3, 0, 3),
    Sketcher.Constraint("Coincident", 3, 3, 2, 3),
    Sketcher.Constraint("Coincident", 5, 3, 4, 3),
    Sketcher.Constraint("Equal", 0, 2),
    Sketcher.Constraint("Equal", 1, 3),
    Sketcher.Constraint("Equal", 2, 4),
    Sketcher.Constraint("Equal", 3, 5),
    Sketcher.Constraint("Symmetric", 0, 3, 2, 3, -2),
    Sketcher.Constraint("PointOnObject", 4, 3, -2),
    Sketcher.Constraint("Diameter", 0, Q("6.2 mm")),
    Sketcher.Constraint("Diameter", 1, Q("3.4 mm")),
    Sketcher.Constraint("DistanceY", -1, 1, 0, 3, Q("14.8 mm")),
    Sketcher.Constraint("DistanceY", 4, 3, -1, 1, Q("29.6 mm")),
    Sketcher.Constraint("DistanceX", -1, 1, 0, 3, Q("25.634352 mm")),
])
pocket1 = body.newObject("PartDesign::Pocket", "Pocket")
pocket1.Profile = sketch6
pocket1.Length = 1
pocket1.Reversed = True
doc.recompute()

chamfer = body.newObject("PartDesign::Chamfer", "Chamfer")
chamfer.Base = (pocket1, edges_at(pocket1, [(-33.963, 18.8, 11.6)]))
chamfer.ChamferType = "Two distances"
chamfer.Size = 1.4
chamfer.Size2 = 0.8
chamfer.FlipDirection = True
doc.recompute()

chamfer2 = body.newObject("PartDesign::Chamfer", "Chamfer001")
chamfer2.Base = (chamfer, edges_at(chamfer, [(31.163, 18.8, 11.6)]))
chamfer2.ChamferType = "Two distances"
chamfer2.Size = 1.4
chamfer2.Size2 = 0.8
chamfer2.FlipDirection = True
doc.recompute()

chamfer3 = body.newObject("PartDesign::Chamfer", "Chamfer002")
chamfer3.Base = (chamfer2, edges_at(chamfer2, [(-1.4, -37.6, 11.6)]))
chamfer3.ChamferType = "Two distances"
chamfer3.Size = 1.4
chamfer3.Size2 = 0.8
chamfer3.FlipDirection = True
doc.recompute()

fillet = body.newObject("PartDesign::Fillet", "Fillet")
fillet.Base = (chamfer3, edges_at(chamfer3, [(-0.433, 0.25, 0.5), (0.433, 0.25, 0.5), (0, -0.5, 0.5)]))
fillet.Radius = 0.1
doc.recompute()

chamfer4 = body.newObject("PartDesign::Chamfer", "Chamfer003")
chamfer4.Base = (fillet, edges_at(fillet, [
    (-22.25, -12.846, 0),
    (-35.815, 20.678, 0),
    (0, 25.692, 0),
    (35.815, 20.678, 0),
    (22.25, -12.846, 0),
    (0, -41.356, 0),
]))
chamfer4.Size = 1.2

doc.recompute()
